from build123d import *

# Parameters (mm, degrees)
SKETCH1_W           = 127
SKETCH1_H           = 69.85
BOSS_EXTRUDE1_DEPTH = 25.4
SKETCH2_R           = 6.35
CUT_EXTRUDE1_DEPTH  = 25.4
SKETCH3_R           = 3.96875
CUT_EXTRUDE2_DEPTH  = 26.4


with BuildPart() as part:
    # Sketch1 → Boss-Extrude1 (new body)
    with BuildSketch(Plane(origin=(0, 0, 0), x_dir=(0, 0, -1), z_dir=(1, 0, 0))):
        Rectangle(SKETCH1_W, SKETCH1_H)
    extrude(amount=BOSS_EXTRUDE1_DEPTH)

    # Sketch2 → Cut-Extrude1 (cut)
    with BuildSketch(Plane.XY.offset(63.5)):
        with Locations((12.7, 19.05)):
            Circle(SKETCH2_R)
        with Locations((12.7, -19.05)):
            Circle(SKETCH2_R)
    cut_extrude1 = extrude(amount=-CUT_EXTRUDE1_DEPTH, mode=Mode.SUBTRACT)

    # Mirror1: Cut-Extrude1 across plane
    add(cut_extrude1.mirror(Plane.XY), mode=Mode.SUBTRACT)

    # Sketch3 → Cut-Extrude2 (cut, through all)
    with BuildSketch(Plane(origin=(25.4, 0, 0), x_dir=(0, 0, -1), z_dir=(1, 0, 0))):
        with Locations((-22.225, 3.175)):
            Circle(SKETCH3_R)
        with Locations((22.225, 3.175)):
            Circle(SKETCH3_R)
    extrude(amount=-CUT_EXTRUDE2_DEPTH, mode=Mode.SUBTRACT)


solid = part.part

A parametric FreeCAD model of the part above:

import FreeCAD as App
import Part
import Sketcher
Q = App.Units.Quantity


def add_polygon(sketch, points):
    """Adds a closed chain of lines whose ends are joined by coincident constraints."""
    first, n = sketch.GeometryCount, len(points)
    for a, b in zip(points, points[1:] + points[:1]):
        sketch.addGeometry(Part.LineSegment(App.Vector(*a, 0), App.Vector(*b, 0)), False)
    for i in range(n):
        sketch.addConstraint(Sketcher.Constraint("Coincident", first + i, 2, first + (i + 1) % n, 1))

doc = App.newDocument("Part")
body = doc.addObject("PartDesign::Body", "Body")

sketch1 = body.newObject("Sketcher::SketchObject", "Sketch")
sketch1.AttachmentSupport = (doc.getObject("YZ_Plane"), [""])
sketch1.MapMode = "FlatFace"
add_polygon(sketch1, [(35, 64), (-35, 64), (-35, -64), (35, -64)])
sketch1.addConstraint([
    Sketcher.Constraint("Horizontal", 0),
    Sketcher.Constraint("Vertical", 1),
    Sketcher.Constraint("Horizontal", 2),
    Sketcher.Constraint("Vertical", 3),
    Sketcher.Constraint("Symmetric", 0, 2, 2, 2, -1, 1),
    Sketcher.Constraint("DistanceY", 1, 2, 1, 1, Q("5 in")),
    Sketcher.Constraint("DistanceX", 0, 2, 0, 1, Q("2.75 in")),
])
pad1 = body.newObject("PartDesign::Pad", "Pad")
pad1.Profile = sketch1
pad1.Length = Q("1 in")

sketch2 = body.newObject("Sketcher::SketchObject", "Sketch001")
sketch2.AttachmentSupport = (doc.getObject("XY_Plane"), [""])
sketch2.MapMode = "FlatFace"
sketch2.AttachmentOffset = App.Placement(App.Vector(0, 0, 2.5 * 25.4), App.Rotation())
sketch2.addGeometry([
    Part.Circle(App.Vector(13, 19, 0), App.Vector(0, 0, 1), 6),
    Part.Circle(App.Vector(13, -19, 0), App.Vector(0, 0, 1), 6),
], False)
sketch2.addConstraint([
    Sketcher.Constraint("Equal", 0, 1),
    Sketcher.Constraint("Symmetric", 0, 3, 1, 3, -1),
    Sketcher.Constraint("Diameter", 0, Q("0.5 in")),
    Sketcher.Constraint("DistanceX", -1, 1, 0, 3, Q("0.5 in")),
    Sketcher.Constraint("DistanceY", 1, 3, 0, 3, Q("1.5 in")),
])
pocket1 = body.newObject("PartDesign::Pocket", "Pocket")
pocket1.Profile = sketch2
pocket1.Length = Q("1 in")
doc.recompute()

mirrored = body.newObject("PartDesign::Mirrored", "Mirrored")
mirrored.Originals = [pocket1]
mirrored.MirrorPlane = (doc.getObject("XY_Plane"), [""])
body.Tip = mirrored

sketch3 = body.newObject("Sketcher::SketchObject", "Sketch002")
sketch3.AttachmentSupport = (doc.getObject("YZ_Plane"), [""])
sketch3.MapMode = "FlatFace"
sketch3.AttachmentOffset = App.Placement(App.Vector(0, 0, 1 * 25.4), App.Rotation())
sketch3.addGeometry([
    Part.Circle(App.Vector(3.2, 22.2, 0), App.Vector(0, 0, 1), 4),
    Part.Circle(App.Vector(3.2, -22.2, 0), App.Vector(0, 0, 1), 4),
], False)
sketch3.addConstraint([
    Sketcher.Constraint("Equal", 0, 1),
    Sketcher.Constraint("Symmetric", 0, 3, 1, 3, -1),
    Sketcher.Constraint("Diameter", 0, Q("0.3125 in")),
    Sketcher.Constraint("DistanceY", 1, 3, 0, 3, Q("1.75 in")),
    Sketcher.Constraint("DistanceX", -1, 1, 0, 3, Q("0.125 in")),
])
pocket2 = body.newObject("PartDesign::Pocket", "Pocket001")
pocket2.Profile = sketch3
pocket2.Type = "ThroughAll"

doc.recompute()
